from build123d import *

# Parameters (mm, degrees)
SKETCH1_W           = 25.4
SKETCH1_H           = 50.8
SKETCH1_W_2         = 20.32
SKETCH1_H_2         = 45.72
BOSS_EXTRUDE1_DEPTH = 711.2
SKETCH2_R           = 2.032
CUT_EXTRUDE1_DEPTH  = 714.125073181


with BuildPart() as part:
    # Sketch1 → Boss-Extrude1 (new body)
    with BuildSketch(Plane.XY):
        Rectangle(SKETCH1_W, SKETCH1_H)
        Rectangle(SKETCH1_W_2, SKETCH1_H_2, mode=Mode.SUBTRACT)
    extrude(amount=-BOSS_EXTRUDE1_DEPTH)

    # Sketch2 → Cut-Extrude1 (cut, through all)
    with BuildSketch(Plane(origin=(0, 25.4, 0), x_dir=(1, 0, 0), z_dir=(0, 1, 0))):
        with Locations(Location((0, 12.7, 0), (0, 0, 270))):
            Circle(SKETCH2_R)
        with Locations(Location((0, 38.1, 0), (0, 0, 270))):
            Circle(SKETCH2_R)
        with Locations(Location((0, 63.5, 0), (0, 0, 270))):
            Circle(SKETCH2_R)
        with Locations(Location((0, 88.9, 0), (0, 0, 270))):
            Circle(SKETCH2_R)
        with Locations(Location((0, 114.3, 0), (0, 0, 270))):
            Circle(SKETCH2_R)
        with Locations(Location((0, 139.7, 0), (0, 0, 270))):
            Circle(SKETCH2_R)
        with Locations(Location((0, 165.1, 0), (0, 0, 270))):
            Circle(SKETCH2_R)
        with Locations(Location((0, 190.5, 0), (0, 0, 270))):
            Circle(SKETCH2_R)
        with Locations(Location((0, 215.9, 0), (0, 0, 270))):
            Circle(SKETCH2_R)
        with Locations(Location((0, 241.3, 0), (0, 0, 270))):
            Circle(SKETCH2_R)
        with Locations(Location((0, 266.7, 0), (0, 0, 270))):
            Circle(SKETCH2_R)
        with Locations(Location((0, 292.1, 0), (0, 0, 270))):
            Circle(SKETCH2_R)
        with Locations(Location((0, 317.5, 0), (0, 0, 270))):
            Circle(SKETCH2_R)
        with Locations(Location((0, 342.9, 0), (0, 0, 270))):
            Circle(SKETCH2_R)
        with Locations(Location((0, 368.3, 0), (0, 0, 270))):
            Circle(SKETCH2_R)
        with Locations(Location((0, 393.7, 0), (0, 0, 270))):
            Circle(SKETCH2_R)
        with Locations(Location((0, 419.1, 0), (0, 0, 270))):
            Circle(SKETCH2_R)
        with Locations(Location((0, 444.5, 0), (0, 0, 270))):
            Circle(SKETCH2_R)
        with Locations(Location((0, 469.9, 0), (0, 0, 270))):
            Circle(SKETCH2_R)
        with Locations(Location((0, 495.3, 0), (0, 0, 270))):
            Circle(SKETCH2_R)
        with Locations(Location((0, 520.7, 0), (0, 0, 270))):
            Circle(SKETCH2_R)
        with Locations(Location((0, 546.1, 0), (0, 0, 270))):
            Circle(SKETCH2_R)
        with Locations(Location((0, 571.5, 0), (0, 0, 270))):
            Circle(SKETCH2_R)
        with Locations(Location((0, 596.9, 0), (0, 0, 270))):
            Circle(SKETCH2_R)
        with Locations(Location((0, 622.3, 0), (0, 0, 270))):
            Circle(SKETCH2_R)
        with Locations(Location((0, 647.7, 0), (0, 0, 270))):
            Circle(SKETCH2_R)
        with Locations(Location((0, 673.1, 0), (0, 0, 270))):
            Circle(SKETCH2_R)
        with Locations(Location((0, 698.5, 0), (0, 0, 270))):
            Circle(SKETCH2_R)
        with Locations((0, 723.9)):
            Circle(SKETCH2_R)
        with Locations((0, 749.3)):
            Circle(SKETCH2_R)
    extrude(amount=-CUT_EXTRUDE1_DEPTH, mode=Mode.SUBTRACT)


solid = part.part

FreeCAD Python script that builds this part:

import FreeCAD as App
import Part
import Sketcher
from FreeCAD import Vector
Q = App.Units.Quantity


def add_polygon(sketch, points):
    """Adds a closed chain of lines whose ends are joined by coincident constraints."""
    first, n = sketch.GeometryCount, len(points)
    for a, b in zip(points, points[1:] + points[:1]):
        sketch.addGeometry(Part.LineSegment(App.Vector(*a, 0), App.Vector(*b, 0)), False)
    for i in range(n):
        sketch.addConstraint(Sketcher.Constraint("Coincident", first + i, 2, first + (i + 1) % n, 1))

doc = App.newDocument("Part")
params = doc.addObject("Spreadsheet::Sheet", "Params")
for row, (alias, value) in enumerate([
    ("sketch1_width", "1 in"),
    ("sketch1_height", "2 in"),
    ("sketch1_width2", "0.8 in"),
    ("sketch1_height2", "1.8 in"),
    ("pad1_length", "28 in"),
    ("sketch2_diameter", "0.16 in"),
], start=1):
    params.set(f"A{row}", alias)
    params.set(f"B{row}", "=" + value)
    params.setAlias(f"B{row}", alias)

body = doc.addObject("PartDesign::Body", "Body")

sketch1 = body.newObject("Sketcher::SketchObject", "Sketch")
sketch1.AttachmentSupport = (doc.getObject("XY_Plane"), [""])
sketch1.MapMode = "FlatFace"
add_polygon(sketch1, [(-13, 25), (-13, -25), (13, -25), (13, 25)])
add_polygon(sketch1, [(10, -23), (-10, -23), (-10, 23), (10, 23)])
sketch1.addConstraint(Sketcher.Constraint("Vertical", 0))
sketch1.addConstraint(Sketcher.Constraint("Horizontal", 1))
sketch1.addConstraint(Sketcher.Constraint("Vertical", 2))
sketch1.addConstraint(Sketcher.Constraint("Horizontal", 3))
sketch1.addConstraint(Sketcher.Constraint("Horizontal", 4))
sketch1.addConstraint(Sketcher.Constraint("Vertical", 5))
sketch1.addConstraint(Sketcher.Constraint("Horizontal", 6))
sketch1.addConstraint(Sketcher.Constraint("Vertical", 7))
sketch1.addConstraint(Sketcher.Constraint("Symmetric", 0, 2, 2, 2, -1, 1))
sketch1.addConstraint(Sketcher.Constraint("Symmetric", 4, 2, 6, 2, -1, 1))
sketch1.addConstraint(Sketcher.Constraint("DistanceX", 1, 1, 1, 2, Q("1 in")))
sketch1.addConstraint(Sketcher.Constraint("DistanceY", 0, 2, 0, 1, Q("2 in")))
sketch1.addConstraint(Sketcher.Constraint("DistanceX", 4, 2, 4, 1, Q("0.8 in")))
sketch1.addConstraint(Sketcher.Constraint("DistanceY", 5, 1, 5, 2, Q("1.8 in")))
sketch1.setExpression("Constraints[18]", "Params.sketch1_width")
sketch1.setExpression("Constraints[19]", "Params.sketch1_height")
sketch1.setExpression("Constraints[20]", "Params.sketch1_width2")
sketch1.setExpression("Constraints[21]", "Params.sketch1_height2")
pad1 = body.newObject("PartDesign::Pad", "Pad")
pad1.Profile = sketch1
pad1.setExpression("Length", "Params.pad1_length")
pad1.Reversed = True

sketch2 = body.newObject("Sketcher::SketchObject", "Sketch001")
sketch2.AttachmentSupport = (doc.getObject("XZ_Plane"), [""])
sketch2.MapMode = "FlatFace"
sketch2.AttachmentOffset = App.Placement(Vector(0, 0, -1 * 25.4), App.Rotation())
sketch2.addGeometry(Part.Circle(Vector(0, -12.7, 0), Vector(0, 0, 1), 2), False)
sketch2.addGeometry(Part.Circle(Vector(0, -38.1, 0), Vector(0, 0, 1), 2), False)
sketch2.addGeometry(Part.Circle(Vector(0, -63.5, 0), Vector(0, 0, 1), 2), False)
sketch2.addGeometry(Part.Circle(Vector(0, -88.9, 0), Vector(0, 0, 1), 2), False)
sketch2.addGeometry(Part.Circle(Vector(0, -114.3, 0), Vector(0, 0, 1), 2), False)
sketch2.addGeometry(Part.Circle(Vector(0, -139.7, 0), Vector(0, 0, 1), 2), False)
sketch2.addGeometry(Part.Circle(Vector(0, -165.1, 0), Vector(0, 0, 1), 2), False)
sketch2.addGeometry(Part.Circle(Vector(0, -190.5, 0), Vector(0, 0, 1), 2), False)
sketch2.addGeometry(Part.Circle(Vector(0, -215.9, 0), Vector(0, 0, 1), 2), False)
sketch2.addGeometry(Part.Circle(Vector(0, -241.3, 0), Vector(0, 0, 1), 2), False)
sketch2.addGeometry(Part.Circle(Vector(0, -266.7, 0), Vector(0, 0, 1), 2), False)
sketch2.addGeometry(Part.Circle(Vector(0, -292.1, 0), Vector(0, 0, 1), 2), False)
sketch2.addGeometry(Part.Circle(Vector(0, -317.5, 0), Vector(0, 0, 1), 2), False)
sketch2.addGeometry(Part.Circle(Vector(0, -342.9, 0), Vector(0, 0, 1), 2), False)
sketch2.addGeometry(Part.Circle(Vector(0, -368.3, 0), Vector(0, 0, 1), 2), False)
sketch2.addGeometry(Part.Circle(Vector(0, -393.7, 0), Vector(0, 0, 1), 2), False)
sketch2.addGeometry(Part.Circle(Vector(0, -419.1, 0), Vector(0, 0, 1), 2), False)
sketch2.addGeometry(Part.Circle(Vector(0, -444.5, 0), Vector(0, 0, 1), 2), False)
sketch2.addGeometry(Part.Circle(Vector(0, -469.9, 0), Vector(0, 0, 1), 2), False)
sketch2.addGeometry(Part.Circle(Vector(0, -495.3, 0), Vector(0, 0, 1), 2), False)
sketch2.addGeometry(Part.Circle(Vector(0, -520.7, 0), Vector(0, 0, 1), 2), False)
sketch2.addGeometry(Part.Circle(Vector(0, -546.1, 0), Vector(0, 0, 1), 2), False)
sketch2.addGeometry(Part.Circle(Vector(0, -571.5, 0), Vector(0, 0, 1), 2), False)
sketch2.addGeometry(Part.Circle(Vector(0, -596.9, 0), Vector(0, 0, 1), 2), False)
sketch2.addGeometry(Part.Circle(Vector(0, -622.3, 0), Vector(0, 0, 1), 2), False)
sketch2.addGeometry(Part.Circle(Vector(0, -647.7, 0), Vector(0, 0, 1), 2), False)
sketch2.addGeometry(Part.Circle(Vector(0, -673.1, 0), Vector(0, 0, 1), 2), False)
sketch2.addGeometry(Part.Circle(Vector(0, -698.5, 0), Vector(0, 0, 1), 2), False)
sketch2.addGeometry(Part.Circle(Vector(0, -723.9, 0), Vector(0, 0, 1), 2), False)
sketch2.addGeometry(Part.Circle(Vector(0, -749.3, 0), Vector(0, 0, 1), 2), False)
sketch2.addConstraint(Sketcher.Constraint("Equal", 0, 1))
sketch2.addConstraint(Sketcher.Constraint("Equal", 1, 2))
sketch2.addConstraint(Sketcher.Constraint("Equal", 2, 3))
sketch2.addConstraint(Sketcher.Constraint("Equal", 3, 4))
sketch2.addConstraint(Sketcher.Constraint("Equal", 4, 5))
sketch2.addConstraint(Sketcher.Constraint("Equal", 5, 6))
sketch2.addConstraint(Sketcher.Constraint("Equal", 6, 7))
sketch2.addConstraint(Sketcher.Constraint("Equal", 7, 8))
sketch2.addConstraint(Sketcher.Constraint("Equal", 8, 9))
sketch2.addConstraint(Sketcher.Constraint("Equal", 9, 10))
sketch2.addConstraint(Sketcher.Constraint("Equal", 10, 11))
sketch2.addConstraint(Sketcher.Constraint("Equal", 11, 12))
sketch2.addConstraint(Sketcher.Constraint("Equal", 12, 13))
sketch2.addConstraint(Sketcher.Constraint("Equal", 13, 14))
sketch2.addConstraint(Sketcher.Constraint("Equal", 14, 15))
sketch2.addConstraint(Sketcher.Constraint("Equal", 15, 16))
sketch2.addConstraint(Sketcher.Constraint("Equal", 16, 17))
sketch2.addConstraint(Sketcher.Constraint("Equal", 17, 18))
sketch2.addConstraint(Sketcher.Constraint("Equal", 18, 19))
sketch2.addConstraint(Sketcher.Constraint("Equal", 19, 20))
sketch2.addConstraint(Sketcher.Constraint("Equal", 20, 21))
sketch2.addConstraint(Sketcher.Constraint("Equal", 21, 22))
sketch2.addConstraint(Sketcher.Constraint("Equal", 22, 23))
sketch2.addConstraint(Sketcher.Constraint("Equal", 23, 24))
sketch2.addConstraint(Sketcher.Constraint("Equal", 24, 25))
sketch2.addConstraint(Sketcher.Constraint("Equal", 25, 26))
sketch2.addConstraint(Sketcher.Constraint("Equal", 26, 27))
sketch2.addConstraint(Sketcher.Constraint("Equal", 27, 28))
sketch2.addConstraint(Sketcher.Constraint("Equal", 28, 29))
sketch2.addConstraint(Sketcher.Constraint("PointOnObject", 0, 3, -2))
sketch2.addConstraint(Sketcher.Constraint("PointOnObject", 1, 3, -2))
sketch2.addConstraint(Sketcher.Constraint("PointOnObject", 2, 3, -2))
sketch2.addConstraint(Sketcher.Constraint("PointOnObject", 3, 3, -2))
sketch2.addConstraint(Sketcher.Constraint("PointOnObject", 4, 3, -2))
sketch2.addConstraint(Sketcher.Constraint("PointOnObject", 5, 3, -2))
sketch2.addConstraint(Sketcher.Constraint("PointOnObject", 6, 3, -2))
sketch2.addConstraint(Sketcher.Constraint("PointOnObject", 7, 3, -2))
sketch2.addConstraint(Sketcher.Constraint("PointOnObject", 8, 3, -2))
sketch2.addConstraint(Sketcher.Constraint("PointOnObject", 9, 3, -2))
sketch2.addConstraint(Sketcher.Constraint("PointOnObject", 10, 3, -2))
sketch2.addConstraint(Sketcher.Constraint("PointOnObject", 11, 3, -2))
sketch2.addConstraint(Sketcher.Constraint("PointOnObject", 12, 3, -2))
sketch2.addConstraint(Sketcher.Constraint("PointOnObject", 13, 3, -2))
sketch2.addConstraint(Sketcher.Constraint("PointOnObject", 14, 3, -2))
sketch2.addConstraint(Sketcher.Constraint("PointOnObject", 15, 3, -2))
sketch2.addConstraint(Sketcher.Constraint("PointOnObject", 16, 3, -2))
sketch2.addConstraint(Sketcher.Constraint("PointOnObject", 17, 3, -2))
sketch2.addConstraint(Sketcher.Constraint("PointOnObject", 18, 3, -2))
sketch2.addConstraint(Sketcher.Constraint("PointOnObject", 19, 3, -2))
sketch2.addConstraint(Sketcher.Constraint("PointOnObject", 20, 3, -2))
sketch2.addConstraint(Sketcher.Constraint("PointOnObject", 21, 3, -2))
sketch2.addConstraint(Sketcher.Constraint("PointOnObject", 22, 3, -2))
sketch2.addConstraint(Sketcher.Constraint("PointOnObject", 23, 3, -2))
sketch2.addConstraint(Sketcher.Constraint("PointOnObject", 24, 3, -2))
sketch2.addConstraint(Sketcher.Constraint("PointOnObject", 25, 3, -2))
sketch2.addConstraint(Sketcher.Constraint("PointOnObject", 26, 3, -2))
sketch2.addConstraint(Sketcher.Constraint("PointOnObject", 27, 3, -2))
sketch2.addConstraint(Sketcher.Constraint("PointOnObject", 28, 3, -2))
sketch2.addConstraint(Sketcher.Constraint("PointOnObject", 29, 3, -2))
sketch2.addConstraint(Sketcher.Constraint("Diameter", 0, Q("0.16 in")))
sketch2.addConstraint(Sketcher.Constraint("DistanceY", 1, 3, 0, 3, Q("1 in")))
sketch2.addConstraint(Sketcher.Constraint("DistanceY", 2, 3, 1, 3, Q("1 in")))
sketch2.addConstraint(Sketcher.Constraint("DistanceY", 3, 3, 2, 3, Q("1 in")))
sketch2.addConstraint(Sketcher.Constraint("DistanceY", 4, 3, 3, 3, Q("1 in")))
sketch2.addConstraint(Sketcher.Constraint("DistanceY", 5, 3, 4, 3, Q("1 in")))
sketch2.addConstraint(Sketcher.Constraint("DistanceY", 6, 3, 5, 3, Q("1 in")))
sketch2.addConstraint(Sketcher.Constraint("DistanceY", 7, 3, 6, 3, Q("1 in")))
sketch2.addConstraint(Sketcher.Constraint("DistanceY", 8, 3, 7, 3, Q("1 in")))
sketch2.addConstraint(Sketcher.Constraint("DistanceY", 9, 3, 8, 3, Q("1 in")))
sketch2.addConstraint(Sketcher.Constraint("DistanceY", 10, 3, 9, 3, Q("1 in")))
sketch2.addConstraint(Sketcher.Constraint("DistanceY", 11, 3, 10, 3, Q("1 in")))
sketch2.addConstraint(Sketcher.Constraint("DistanceY", 12, 3, 11, 3, Q("1 in")))
sketch2.addConstraint(Sketcher.Constraint("DistanceY", 13, 3, 12, 3, Q("1 in")))
sketch2.addConstraint(Sketcher.Constraint("DistanceY", 14, 3, 13, 3, Q("1 in")))
sketch2.addConstraint(Sketcher.Constraint("DistanceY", 15, 3, 14, 3, Q("1 in")))
sketch2.addConstraint(Sketcher.Constraint("DistanceY", 16, 3, 15, 3, Q("1 in")))
sketch2.addConstraint(Sketcher.Constraint("DistanceY", 17, 3, 16, 3, Q("1 in")))
sketch2.addConstraint(Sketcher.Constraint("DistanceY", 18, 3, 17, 3, Q("1 in")))
sketch2.addConstraint(Sketcher.Constraint("DistanceY", 19, 3, 18, 3, Q("1 in")))
sketch2.addConstraint(Sketcher.Constraint("DistanceY", 20, 3, 19, 3, Q("1 in")))
sketch2.addConstraint(Sketcher.Constraint("DistanceY", 21, 3, 20, 3, Q("1 in")))
sketch2.addConstraint(Sketcher.Constraint("DistanceY", 22, 3, 21, 3, Q("1 in")))
sketch2.addConstraint(Sketcher.Constraint("DistanceY", 23, 3, 22, 3, Q("1 in")))
sketch2.addConstraint(Sketcher.Constraint("DistanceY", 24, 3, 23, 3, Q("1 in")))
sketch2.addConstraint(Sketcher.Constraint("DistanceY", 25, 3, 24, 3, Q("1 in")))
sketch2.addConstraint(Sketcher.Constraint("DistanceY", 26, 3, 25, 3, Q("1 in")))
sketch2.addConstraint(Sketcher.Constraint("DistanceY", 27, 3, 26, 3, Q("1 in")))
sketch2.addConstraint(Sketcher.Constraint("DistanceY", 28, 3, 27, 3, Q("1 in")))
sketch2.addConstraint(Sketcher.Constraint("DistanceY", 29, 3, 28, 3, Q("1 in")))
sketch2.addConstraint(Sketcher.Constraint("DistanceY", 0, 3, -1, 1, Q("0.5 in")))
sketch2.setExpression("Constraints[59]", "Params.sketch2_diameter")
pocket1 = body.newObject("PartDesign::Pocket", "Pocket")
pocket1.Profile = sketch2
pocket1.Type = "ThroughAll"
pocket1.Reversed = True

doc.recompute()
